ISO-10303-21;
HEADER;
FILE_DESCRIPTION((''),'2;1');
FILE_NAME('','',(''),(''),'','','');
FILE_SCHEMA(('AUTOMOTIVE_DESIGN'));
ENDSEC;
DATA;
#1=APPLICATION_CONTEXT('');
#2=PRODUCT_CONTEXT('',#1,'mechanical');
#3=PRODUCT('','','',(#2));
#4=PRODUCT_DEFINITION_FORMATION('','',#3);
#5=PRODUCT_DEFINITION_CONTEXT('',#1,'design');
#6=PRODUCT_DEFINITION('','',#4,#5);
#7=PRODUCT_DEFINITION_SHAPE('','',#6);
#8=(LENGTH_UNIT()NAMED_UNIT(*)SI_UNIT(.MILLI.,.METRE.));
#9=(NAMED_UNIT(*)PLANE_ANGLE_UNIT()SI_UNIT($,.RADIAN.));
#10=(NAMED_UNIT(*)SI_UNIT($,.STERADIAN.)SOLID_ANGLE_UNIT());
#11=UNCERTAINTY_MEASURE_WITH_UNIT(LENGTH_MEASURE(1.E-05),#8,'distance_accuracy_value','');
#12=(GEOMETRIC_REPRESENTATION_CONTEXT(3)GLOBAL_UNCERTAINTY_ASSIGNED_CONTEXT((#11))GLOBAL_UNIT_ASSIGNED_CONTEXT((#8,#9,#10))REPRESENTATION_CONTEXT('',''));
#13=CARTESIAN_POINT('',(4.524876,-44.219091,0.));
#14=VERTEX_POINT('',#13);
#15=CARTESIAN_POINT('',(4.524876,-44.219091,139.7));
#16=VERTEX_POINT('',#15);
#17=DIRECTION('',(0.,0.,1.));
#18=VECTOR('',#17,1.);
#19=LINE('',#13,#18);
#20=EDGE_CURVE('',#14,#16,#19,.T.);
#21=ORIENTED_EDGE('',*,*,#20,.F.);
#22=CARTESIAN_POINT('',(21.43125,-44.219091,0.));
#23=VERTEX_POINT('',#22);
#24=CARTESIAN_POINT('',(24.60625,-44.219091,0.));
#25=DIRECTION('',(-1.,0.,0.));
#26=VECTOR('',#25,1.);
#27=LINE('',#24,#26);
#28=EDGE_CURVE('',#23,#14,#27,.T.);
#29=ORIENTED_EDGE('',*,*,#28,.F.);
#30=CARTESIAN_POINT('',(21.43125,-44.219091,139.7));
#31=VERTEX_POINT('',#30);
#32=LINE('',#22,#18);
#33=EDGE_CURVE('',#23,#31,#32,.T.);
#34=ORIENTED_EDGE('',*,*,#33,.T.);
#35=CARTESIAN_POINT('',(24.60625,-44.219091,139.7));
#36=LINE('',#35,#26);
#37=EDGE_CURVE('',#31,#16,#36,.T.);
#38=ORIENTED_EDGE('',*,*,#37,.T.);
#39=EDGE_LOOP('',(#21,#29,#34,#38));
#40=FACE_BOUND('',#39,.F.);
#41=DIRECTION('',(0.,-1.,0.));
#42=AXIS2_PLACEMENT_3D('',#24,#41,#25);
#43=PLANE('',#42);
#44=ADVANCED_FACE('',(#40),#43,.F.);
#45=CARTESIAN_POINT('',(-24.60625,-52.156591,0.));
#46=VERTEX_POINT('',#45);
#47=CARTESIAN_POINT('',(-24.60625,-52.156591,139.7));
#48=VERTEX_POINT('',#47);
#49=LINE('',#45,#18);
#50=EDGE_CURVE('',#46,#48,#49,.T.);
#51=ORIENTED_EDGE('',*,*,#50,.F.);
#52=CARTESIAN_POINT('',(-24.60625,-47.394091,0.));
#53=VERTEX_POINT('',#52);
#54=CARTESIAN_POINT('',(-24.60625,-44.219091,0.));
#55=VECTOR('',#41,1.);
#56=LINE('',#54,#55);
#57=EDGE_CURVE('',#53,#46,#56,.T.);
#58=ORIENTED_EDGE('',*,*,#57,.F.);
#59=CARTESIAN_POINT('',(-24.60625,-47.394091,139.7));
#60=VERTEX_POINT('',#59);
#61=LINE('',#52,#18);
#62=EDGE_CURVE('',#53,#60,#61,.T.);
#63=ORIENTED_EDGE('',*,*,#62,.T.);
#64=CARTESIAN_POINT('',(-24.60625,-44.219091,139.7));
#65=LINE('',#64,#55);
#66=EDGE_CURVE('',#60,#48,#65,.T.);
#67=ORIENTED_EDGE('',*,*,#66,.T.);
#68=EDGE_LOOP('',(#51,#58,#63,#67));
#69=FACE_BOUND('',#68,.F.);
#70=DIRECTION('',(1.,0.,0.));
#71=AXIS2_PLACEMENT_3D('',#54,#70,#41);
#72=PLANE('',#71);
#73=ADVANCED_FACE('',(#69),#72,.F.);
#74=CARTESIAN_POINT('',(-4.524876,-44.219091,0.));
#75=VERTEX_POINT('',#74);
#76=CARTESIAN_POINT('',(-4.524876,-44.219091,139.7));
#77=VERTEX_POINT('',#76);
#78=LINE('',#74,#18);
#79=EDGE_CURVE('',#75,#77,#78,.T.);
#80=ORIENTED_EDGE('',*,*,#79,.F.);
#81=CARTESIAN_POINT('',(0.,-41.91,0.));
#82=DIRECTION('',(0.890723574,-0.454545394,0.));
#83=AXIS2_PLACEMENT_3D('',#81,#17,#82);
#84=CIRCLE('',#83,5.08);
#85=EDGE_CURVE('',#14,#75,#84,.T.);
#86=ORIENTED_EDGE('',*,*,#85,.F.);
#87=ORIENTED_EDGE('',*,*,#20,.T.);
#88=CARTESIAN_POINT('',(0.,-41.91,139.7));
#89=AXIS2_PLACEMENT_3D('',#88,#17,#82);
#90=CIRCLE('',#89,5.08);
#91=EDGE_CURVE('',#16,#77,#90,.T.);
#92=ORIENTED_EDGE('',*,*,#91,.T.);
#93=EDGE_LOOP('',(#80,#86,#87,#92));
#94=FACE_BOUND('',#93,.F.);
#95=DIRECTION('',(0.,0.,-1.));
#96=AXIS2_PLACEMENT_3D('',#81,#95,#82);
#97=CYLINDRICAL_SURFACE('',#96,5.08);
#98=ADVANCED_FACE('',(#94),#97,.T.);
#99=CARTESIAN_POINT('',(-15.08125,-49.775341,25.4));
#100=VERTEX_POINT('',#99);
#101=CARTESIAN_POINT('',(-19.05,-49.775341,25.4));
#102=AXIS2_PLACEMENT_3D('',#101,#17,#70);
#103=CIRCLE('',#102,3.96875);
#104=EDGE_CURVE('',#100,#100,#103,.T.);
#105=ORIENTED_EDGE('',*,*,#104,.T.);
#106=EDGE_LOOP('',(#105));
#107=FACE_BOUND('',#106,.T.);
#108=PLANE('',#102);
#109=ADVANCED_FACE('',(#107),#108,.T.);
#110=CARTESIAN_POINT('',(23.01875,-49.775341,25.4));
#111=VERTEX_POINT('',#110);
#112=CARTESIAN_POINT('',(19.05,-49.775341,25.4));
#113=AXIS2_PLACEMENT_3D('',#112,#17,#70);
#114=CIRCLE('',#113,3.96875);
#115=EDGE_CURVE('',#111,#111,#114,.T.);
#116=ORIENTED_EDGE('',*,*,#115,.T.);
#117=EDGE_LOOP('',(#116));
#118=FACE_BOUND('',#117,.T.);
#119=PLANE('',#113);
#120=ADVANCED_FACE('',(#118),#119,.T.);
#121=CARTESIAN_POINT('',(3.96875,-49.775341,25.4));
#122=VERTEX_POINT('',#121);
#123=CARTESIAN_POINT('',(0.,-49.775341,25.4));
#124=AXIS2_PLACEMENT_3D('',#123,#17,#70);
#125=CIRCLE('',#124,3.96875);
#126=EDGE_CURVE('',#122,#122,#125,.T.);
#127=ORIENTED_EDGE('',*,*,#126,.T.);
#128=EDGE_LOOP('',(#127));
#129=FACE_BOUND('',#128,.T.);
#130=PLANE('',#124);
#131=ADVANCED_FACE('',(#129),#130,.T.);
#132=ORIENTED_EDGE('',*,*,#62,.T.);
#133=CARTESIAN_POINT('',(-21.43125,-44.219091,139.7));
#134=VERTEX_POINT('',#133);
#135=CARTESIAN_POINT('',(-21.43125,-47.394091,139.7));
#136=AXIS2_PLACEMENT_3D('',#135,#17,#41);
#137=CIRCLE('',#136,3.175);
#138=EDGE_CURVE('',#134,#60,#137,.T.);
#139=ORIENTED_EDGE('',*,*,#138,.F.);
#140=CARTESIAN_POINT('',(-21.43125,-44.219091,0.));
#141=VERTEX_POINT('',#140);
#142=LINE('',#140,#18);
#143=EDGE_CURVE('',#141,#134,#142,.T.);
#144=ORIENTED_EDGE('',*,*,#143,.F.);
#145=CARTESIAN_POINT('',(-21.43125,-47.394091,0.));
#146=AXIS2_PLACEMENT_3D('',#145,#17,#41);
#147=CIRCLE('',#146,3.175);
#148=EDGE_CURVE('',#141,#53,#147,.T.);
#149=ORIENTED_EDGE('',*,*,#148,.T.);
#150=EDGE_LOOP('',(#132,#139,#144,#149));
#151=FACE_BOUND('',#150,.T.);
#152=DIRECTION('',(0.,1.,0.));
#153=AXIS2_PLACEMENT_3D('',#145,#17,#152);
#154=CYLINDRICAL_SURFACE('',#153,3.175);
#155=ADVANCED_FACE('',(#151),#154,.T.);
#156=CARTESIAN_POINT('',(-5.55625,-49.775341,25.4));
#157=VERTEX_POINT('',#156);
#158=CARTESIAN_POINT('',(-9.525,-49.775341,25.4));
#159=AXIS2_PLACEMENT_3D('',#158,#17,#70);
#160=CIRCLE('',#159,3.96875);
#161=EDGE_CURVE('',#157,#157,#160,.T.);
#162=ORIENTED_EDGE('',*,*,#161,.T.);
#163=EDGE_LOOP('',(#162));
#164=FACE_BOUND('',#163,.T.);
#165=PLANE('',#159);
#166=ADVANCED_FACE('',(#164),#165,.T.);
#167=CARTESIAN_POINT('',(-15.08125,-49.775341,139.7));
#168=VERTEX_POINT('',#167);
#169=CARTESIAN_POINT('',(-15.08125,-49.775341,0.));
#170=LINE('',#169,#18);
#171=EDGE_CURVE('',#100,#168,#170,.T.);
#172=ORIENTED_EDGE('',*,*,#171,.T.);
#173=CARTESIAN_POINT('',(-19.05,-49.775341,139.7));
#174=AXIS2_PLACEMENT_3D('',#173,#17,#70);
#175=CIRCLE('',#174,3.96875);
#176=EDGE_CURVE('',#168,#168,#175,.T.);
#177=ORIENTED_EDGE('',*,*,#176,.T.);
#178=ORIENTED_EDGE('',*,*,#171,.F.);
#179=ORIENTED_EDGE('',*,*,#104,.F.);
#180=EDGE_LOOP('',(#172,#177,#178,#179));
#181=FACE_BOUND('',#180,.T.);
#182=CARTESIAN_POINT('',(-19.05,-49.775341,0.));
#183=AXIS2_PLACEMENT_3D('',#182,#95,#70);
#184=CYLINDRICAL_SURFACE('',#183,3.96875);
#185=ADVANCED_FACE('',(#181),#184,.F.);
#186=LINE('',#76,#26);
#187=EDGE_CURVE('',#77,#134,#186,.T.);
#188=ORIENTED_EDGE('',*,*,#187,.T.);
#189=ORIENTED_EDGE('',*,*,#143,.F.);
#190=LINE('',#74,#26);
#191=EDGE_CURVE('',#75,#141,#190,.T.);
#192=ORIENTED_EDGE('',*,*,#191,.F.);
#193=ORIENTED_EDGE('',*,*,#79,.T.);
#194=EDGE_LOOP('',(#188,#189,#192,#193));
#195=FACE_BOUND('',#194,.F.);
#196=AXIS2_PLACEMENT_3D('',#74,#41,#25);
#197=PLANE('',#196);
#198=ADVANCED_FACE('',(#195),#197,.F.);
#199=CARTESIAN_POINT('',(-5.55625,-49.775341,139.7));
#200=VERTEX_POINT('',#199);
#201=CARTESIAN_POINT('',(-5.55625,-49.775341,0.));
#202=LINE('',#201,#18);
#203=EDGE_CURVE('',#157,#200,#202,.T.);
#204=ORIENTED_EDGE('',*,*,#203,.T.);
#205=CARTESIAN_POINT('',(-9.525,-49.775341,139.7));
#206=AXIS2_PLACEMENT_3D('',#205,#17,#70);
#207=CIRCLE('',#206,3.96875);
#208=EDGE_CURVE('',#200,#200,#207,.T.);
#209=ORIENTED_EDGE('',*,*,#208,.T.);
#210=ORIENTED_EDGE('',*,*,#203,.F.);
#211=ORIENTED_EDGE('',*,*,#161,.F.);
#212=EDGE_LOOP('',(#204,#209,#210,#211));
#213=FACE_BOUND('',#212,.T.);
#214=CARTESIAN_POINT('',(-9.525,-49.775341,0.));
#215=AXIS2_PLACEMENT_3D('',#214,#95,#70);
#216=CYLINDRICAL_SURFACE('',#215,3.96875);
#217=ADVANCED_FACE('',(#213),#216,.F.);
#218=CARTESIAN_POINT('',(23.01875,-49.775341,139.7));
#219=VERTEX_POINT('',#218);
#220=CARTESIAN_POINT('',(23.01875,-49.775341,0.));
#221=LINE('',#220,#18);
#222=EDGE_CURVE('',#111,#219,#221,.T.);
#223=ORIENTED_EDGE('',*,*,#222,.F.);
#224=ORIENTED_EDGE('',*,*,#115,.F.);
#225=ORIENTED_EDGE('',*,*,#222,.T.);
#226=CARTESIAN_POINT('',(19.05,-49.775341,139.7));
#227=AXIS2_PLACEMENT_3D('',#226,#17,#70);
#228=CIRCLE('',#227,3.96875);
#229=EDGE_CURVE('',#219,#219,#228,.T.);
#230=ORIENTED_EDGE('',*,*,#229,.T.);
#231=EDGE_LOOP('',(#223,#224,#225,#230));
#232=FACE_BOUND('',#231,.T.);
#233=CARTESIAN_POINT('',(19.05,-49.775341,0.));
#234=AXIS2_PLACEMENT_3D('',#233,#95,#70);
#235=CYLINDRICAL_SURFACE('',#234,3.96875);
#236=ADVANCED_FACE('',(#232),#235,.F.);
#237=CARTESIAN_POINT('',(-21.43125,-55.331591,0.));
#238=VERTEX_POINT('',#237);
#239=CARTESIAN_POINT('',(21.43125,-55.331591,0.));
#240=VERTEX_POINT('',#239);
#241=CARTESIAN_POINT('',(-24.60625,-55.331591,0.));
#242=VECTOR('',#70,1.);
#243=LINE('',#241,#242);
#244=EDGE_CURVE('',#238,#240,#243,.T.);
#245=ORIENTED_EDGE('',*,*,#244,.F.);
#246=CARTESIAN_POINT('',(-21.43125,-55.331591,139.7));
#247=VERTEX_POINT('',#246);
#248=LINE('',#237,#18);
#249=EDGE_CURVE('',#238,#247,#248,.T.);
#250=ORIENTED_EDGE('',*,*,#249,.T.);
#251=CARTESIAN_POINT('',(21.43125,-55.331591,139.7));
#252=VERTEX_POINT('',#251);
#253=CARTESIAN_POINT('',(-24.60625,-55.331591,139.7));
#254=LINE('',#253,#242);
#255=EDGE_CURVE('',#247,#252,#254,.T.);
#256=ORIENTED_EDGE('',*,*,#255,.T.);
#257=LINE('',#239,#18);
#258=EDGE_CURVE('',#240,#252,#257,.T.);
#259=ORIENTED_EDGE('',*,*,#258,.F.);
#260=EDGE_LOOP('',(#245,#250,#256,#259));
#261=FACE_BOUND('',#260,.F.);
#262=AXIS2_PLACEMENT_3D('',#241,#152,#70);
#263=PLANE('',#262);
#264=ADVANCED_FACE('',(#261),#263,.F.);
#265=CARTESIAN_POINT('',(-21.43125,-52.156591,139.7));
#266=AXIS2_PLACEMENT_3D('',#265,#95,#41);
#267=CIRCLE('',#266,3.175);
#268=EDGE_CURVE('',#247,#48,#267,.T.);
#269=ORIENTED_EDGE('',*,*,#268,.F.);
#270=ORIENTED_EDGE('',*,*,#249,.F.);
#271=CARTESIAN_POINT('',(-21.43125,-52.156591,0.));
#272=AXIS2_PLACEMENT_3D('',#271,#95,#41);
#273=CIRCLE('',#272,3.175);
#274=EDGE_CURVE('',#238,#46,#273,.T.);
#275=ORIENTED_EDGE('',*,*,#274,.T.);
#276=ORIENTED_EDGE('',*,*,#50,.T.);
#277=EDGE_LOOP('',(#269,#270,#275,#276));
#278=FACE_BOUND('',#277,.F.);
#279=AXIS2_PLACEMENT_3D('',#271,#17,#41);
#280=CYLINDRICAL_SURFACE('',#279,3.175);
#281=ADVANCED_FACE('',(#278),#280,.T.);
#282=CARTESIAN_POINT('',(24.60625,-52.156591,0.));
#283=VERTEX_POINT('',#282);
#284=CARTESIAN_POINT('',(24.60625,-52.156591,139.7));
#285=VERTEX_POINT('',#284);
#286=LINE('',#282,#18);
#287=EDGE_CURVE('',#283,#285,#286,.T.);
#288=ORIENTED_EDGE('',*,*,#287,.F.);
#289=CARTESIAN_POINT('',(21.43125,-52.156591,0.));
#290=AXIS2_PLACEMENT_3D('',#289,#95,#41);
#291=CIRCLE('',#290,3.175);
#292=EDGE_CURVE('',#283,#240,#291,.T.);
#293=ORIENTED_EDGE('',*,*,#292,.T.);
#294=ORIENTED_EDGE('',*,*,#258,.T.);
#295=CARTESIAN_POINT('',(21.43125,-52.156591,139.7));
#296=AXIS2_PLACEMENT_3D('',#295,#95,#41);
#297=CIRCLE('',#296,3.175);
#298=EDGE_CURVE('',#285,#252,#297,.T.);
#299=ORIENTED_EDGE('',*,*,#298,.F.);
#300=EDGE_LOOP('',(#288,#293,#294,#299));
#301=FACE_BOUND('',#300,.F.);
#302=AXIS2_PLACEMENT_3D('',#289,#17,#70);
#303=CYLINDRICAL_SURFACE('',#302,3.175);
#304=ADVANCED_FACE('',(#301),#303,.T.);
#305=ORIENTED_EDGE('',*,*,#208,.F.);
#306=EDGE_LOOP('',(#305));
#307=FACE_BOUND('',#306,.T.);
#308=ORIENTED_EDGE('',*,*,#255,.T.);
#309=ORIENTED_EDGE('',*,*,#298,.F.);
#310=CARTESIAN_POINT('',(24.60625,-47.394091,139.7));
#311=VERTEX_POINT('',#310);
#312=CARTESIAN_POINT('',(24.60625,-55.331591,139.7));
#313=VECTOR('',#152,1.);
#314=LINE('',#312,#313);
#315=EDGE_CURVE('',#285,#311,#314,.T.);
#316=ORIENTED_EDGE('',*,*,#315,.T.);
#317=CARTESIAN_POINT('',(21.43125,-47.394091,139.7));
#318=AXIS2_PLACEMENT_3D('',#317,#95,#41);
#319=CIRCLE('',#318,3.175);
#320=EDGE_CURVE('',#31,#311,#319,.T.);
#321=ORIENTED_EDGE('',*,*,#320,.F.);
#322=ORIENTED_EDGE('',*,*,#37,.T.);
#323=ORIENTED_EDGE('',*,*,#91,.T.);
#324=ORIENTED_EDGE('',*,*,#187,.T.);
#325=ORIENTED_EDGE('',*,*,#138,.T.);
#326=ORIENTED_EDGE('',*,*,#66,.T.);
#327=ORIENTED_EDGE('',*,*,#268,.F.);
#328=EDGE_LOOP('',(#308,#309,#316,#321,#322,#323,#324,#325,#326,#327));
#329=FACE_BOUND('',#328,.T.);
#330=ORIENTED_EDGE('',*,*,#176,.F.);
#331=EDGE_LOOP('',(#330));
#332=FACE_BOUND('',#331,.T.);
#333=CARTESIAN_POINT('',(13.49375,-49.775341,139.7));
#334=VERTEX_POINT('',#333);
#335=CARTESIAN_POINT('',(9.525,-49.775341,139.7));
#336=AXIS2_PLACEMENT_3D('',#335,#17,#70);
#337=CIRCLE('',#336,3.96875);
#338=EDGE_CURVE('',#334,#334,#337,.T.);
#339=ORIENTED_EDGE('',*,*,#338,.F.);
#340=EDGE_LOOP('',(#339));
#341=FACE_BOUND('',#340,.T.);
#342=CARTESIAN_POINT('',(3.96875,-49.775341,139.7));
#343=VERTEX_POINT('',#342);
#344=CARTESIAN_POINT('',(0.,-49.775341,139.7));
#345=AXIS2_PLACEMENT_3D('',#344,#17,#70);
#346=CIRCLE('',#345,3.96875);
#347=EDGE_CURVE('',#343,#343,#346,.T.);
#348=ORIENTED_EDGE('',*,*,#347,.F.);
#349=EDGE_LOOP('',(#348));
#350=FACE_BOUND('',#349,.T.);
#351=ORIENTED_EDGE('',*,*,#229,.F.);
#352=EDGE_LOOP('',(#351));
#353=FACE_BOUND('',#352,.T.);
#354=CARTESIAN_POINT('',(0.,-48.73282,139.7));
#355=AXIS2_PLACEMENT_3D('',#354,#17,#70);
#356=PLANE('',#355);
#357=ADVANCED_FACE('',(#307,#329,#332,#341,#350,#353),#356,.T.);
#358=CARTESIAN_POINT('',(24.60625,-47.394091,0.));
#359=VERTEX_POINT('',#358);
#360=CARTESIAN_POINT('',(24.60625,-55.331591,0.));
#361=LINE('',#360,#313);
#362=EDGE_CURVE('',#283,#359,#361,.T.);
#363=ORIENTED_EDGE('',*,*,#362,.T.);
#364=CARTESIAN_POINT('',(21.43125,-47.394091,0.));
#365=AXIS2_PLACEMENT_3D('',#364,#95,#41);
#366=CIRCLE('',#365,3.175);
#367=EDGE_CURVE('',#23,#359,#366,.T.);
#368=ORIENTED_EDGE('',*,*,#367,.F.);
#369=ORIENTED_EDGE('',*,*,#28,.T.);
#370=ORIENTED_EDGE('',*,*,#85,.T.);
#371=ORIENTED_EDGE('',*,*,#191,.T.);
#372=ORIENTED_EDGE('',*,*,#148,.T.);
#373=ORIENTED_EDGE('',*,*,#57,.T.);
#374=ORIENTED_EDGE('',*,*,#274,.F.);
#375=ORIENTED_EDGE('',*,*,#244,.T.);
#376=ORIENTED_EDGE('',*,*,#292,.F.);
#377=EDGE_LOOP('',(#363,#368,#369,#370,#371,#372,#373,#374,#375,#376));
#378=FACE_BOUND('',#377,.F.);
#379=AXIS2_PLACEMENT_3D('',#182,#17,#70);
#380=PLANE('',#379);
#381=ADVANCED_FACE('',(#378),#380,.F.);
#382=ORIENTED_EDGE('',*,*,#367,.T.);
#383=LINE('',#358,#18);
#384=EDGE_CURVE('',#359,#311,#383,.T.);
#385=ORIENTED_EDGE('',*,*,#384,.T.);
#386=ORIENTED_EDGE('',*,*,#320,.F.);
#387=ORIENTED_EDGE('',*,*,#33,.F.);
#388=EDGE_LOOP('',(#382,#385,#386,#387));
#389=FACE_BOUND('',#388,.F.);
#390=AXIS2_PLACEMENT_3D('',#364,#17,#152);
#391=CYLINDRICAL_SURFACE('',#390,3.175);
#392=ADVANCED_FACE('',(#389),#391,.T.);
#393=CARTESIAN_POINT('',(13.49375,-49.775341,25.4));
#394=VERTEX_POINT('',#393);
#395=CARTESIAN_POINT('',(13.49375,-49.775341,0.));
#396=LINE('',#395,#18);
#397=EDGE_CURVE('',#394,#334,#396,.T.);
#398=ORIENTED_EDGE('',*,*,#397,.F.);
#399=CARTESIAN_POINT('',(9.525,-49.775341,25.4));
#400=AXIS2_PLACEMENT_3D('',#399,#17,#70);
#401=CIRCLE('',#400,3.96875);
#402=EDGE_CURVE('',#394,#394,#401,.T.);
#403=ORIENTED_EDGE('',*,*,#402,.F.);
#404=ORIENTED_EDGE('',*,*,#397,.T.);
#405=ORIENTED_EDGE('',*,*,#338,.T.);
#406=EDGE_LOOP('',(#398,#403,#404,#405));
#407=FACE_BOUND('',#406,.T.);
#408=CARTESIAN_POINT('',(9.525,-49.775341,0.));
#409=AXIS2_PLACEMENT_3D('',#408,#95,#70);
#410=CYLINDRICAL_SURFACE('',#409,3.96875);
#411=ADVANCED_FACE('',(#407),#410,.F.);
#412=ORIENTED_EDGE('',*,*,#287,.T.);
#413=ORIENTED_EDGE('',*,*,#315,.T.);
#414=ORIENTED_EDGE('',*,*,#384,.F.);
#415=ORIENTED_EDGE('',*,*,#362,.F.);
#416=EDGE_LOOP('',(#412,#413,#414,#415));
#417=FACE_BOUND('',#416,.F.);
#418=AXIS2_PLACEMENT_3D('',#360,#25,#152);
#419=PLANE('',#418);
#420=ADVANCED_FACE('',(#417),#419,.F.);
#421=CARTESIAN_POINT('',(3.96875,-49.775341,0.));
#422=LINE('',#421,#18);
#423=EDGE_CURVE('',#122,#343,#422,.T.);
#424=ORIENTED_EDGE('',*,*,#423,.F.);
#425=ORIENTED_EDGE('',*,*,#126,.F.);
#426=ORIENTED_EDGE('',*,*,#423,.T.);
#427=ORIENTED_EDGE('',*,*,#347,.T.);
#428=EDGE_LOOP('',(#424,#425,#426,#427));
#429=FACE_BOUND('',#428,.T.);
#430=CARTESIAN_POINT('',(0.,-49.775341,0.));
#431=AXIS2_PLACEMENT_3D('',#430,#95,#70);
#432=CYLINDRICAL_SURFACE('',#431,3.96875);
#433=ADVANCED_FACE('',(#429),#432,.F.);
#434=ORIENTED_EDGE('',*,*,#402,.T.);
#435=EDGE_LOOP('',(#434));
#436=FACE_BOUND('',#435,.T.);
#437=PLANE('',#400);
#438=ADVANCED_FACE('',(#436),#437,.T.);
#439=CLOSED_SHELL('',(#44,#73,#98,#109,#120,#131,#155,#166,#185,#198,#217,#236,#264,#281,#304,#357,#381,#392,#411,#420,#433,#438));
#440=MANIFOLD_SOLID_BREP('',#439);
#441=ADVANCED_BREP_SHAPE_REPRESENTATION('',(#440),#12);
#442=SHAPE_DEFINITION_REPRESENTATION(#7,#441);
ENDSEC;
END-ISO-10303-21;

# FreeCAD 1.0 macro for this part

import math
import FreeCAD as App
import Part
import Sketcher
Q = App.Units.Quantity


def edges_at(feature, points):
    """Names of the edges that pass closest to the given points."""
    edges = feature.Shape.Edges
    near = lambda p: min(range(len(edges)), key=lambda i: edges[i].distToShape(Part.Vertex(*p))[0])
    return sorted({f"Edge{near(p) + 1}" for p in points})

doc = App.newDocument("Part")
params = doc.addObject("Spreadsheet::Sheet", "Params")
for row, (alias, value) in enumerate([
    ("sketch1_radius", "0.2 in"),
    ("sketch1_diameter", "0.3125 in"),
    ("sketch1_width", "1.9375 in"),
    ("sketch1_height", "0.4375 in"),
    ("pad1_length", "5.5 in"),
    ("sketch2_diameter", "0.3125 in"),
    ("pad2_length", "1 in"),
    ("fillet_radius", "0.125 in"),
], start=1):
    params.set(f"A{row}", alias)
    params.set(f"B{row}", "=" + value)
    params.setAlias(f"B{row}", alias)

body = doc.addObject("PartDesign::Body", "Body")

sketch1 = doc.addObject("Sketcher::SketchObject", "Sketch")
body.addObject(sketch1)
sketch1.AttachmentSupport = (doc.XY_Plane, [""])
sketch1.MapMode = "FlatFace"
sketch1.addGeometry([
    Part.LineSegment(App.Vector(24.6, -44.2, 0), App.Vector(4.5, -44.2, 0)),
    Part.ArcOfCircle(Part.Circle(App.Vector(0, -41.9, 0), App.Vector(0, 0, 1), 5.1), math.radians(-27), math.radians(207)),
    Part.LineSegment(App.Vector(-4.5, -44.2, 0), App.Vector(-24.6, -44.2, 0)),
    Part.LineSegment(App.Vector(-24.6, -44.2, 0), App.Vector(-24.6, -55.3, 0)),
    Part.LineSegment(App.Vector(-24.6, -55.3, 0), App.Vector(24.6, -55.3, 0)),
    Part.LineSegment(App.Vector(24.6, -55.3, 0), App.Vector(24.6, -44.2, 0)),
    Part.Circle(App.Vector(-19.1, -49.8, 0), App.Vector(0, 0, 1), 4),
    Part.Circle(App.Vector(-9.5, -49.8, 0), App.Vector(0, 0, 1), 4),
    Part.Circle(App.Vector(0, -49.8, 0), App.Vector(0, 0, 1), 4),
    Part.Circle(App.Vector(9.5, -49.8, 0), App.Vector(0, 0, 1), 4),
    Part.Circle(App.Vector(19.1, -49.8, 0), App.Vector(0, 0, 1), 4),
], False)
sketch1.addConstraint([
    Sketcher.Constraint("Coincident", 0, 2, 1, 1),
    Sketcher.Constraint("Coincident", 1, 2, 2, 1),
    Sketcher.Constraint("Coincident", 2, 2, 3, 1),
    Sketcher.Constraint("Coincident", 3, 2, 4, 1),
    Sketcher.Constraint("Coincident", 4, 2, 5, 1),
    Sketcher.Constraint("Coincident", 5, 2, 0, 1),
    Sketcher.Constraint("Horizontal", 0),
    Sketcher.Constraint("Horizontal", 2),
    Sketcher.Constraint("Vertical", 3),
    Sketcher.Constraint("Horizontal", 4),
    Sketcher.Constraint("Vertical", 5),
    Sketcher.Constraint("Equal", 6, 7),
    Sketcher.Constraint("Equal", 7, 8),
    Sketcher.Constraint("Equal", 8, 9),
    Sketcher.Constraint("Equal", 9, 10),
    Sketcher.Constraint("Symmetric", 7, 3, 9, 3, -2),
    Sketcher.Constraint("Symmetric", 6, 3, 10, 3, -2),
    Sketcher.Constraint("Symmetric", 0, 2, 1, 2, -2),
    Sketcher.Constraint("PointOnObject", 8, 3, -2),
    Sketcher.Constraint("Horizontal", 6, 3, 7, 3),
    Sketcher.Constraint("Horizontal", 7, 3, 8, 3),
    Sketcher.Constraint("Equal", 0, 2),
    Sketcher.Constraint("Radius", 1, Q("0.2 in")),
    Sketcher.Constraint("Diameter", 6, Q("0.3125 in")),
    Sketcher.Constraint("DistanceX", 6, 3, 10, 3, Q("1.5 in")),
    Sketcher.Constraint("DistanceX", 4, 1, 4, 2, Q("1.9375 in")),
    Sketcher.Constraint("DistanceY", 3, 2, 3, 1, Q("0.4375 in")),
    Sketcher.Constraint("DistanceY", 1, 3, -1, 1, Q("1.65 in")),
    Sketcher.Constraint("DistanceX", 7, 3, 9, 3, Q("0.75 in")),
    Sketcher.Constraint("DistanceY", 8, 3, 0, 2, Q("0.21875 in")),
    Sketcher.Constraint("DistanceX", 0, 2, 0, 1, Q("20.081374 mm")),
])
sketch1.setExpression("Constraints[22]", "Params.sketch1_radius")
sketch1.setExpression("Constraints[23]", "Params.sketch1_diameter")
sketch1.setExpression("Constraints[25]", "Params.sketch1_width")
sketch1.setExpression("Constraints[26]", "Params.sketch1_height")
pad1 = doc.addObject("PartDesign::Pad", "Pad")
body.addObject(pad1)
pad1.Profile = sketch1
pad1.setExpression("Length", "Params.pad1_length")

sketch2 = doc.addObject("Sketcher::SketchObject", "Sketch001")
body.addObject(sketch2)
sketch2.AttachmentSupport = (doc.XY_Plane, [""])
sketch2.MapMode = "FlatFace"
sketch2.addGeometry([
    Part.Circle(App.Vector(-19.1, -49.8, 0), App.Vector(0, 0, 1), 4),
    Part.Circle(App.Vector(-9.5, -49.8, 0), App.Vector(0, 0, 1), 4),
    Part.Circle(App.Vector(0, -49.8, 0), App.Vector(0, 0, 1), 4),
    Part.Circle(App.Vector(9.5, -49.8, 0), App.Vector(0, 0, 1), 4),
    Part.Circle(App.Vector(19.1, -49.8, 0), App.Vector(0, 0, 1), 4),
], False)
sketch2.addConstraint([
    Sketcher.Constraint("Equal", 0, 1),
    Sketcher.Constraint("Equal", 1, 2),
    Sketcher.Constraint("Equal", 2, 3),
    Sketcher.Constraint("Equal", 3, 4),
    Sketcher.Constraint("Symmetric", 1, 3, 3, 3, -2),
    Sketcher.Constraint("Symmetric", 0, 3, 4, 3, -2),
    Sketcher.Constraint("PointOnObject", 2, 3, -2),
    Sketcher.Constraint("Horizontal", 0, 3, 1, 3),
    Sketcher.Constraint("Horizontal", 1, 3, 2, 3),
    Sketcher.Constraint("Diameter", 0, Q("0.3125 in")),
    Sketcher.Constraint("DistanceX", 0, 3, 4, 3, Q("1.5 in")),
    Sketcher.Constraint("DistanceX", 1, 3, 3, 3, Q("0.75 in")),
    Sketcher.Constraint("DistanceY", 0, 3, -1, 1, Q("49.775341 mm")),
])
sketch2.setExpression("Constraints[9]", "Params.sketch2_diameter")
pad2 = doc.addObject("PartDesign::Pad", "Pad001")
body.addObject(pad2)
pad2.Profile = sketch2
pad2.setExpression("Length", "Params.pad2_length")
doc.recompute()

fillet = doc.addObject("PartDesign::Fillet", "Fillet")
body.addObject(fillet)
fillet.Base = (pad2, edges_at(pad2, [
    (24.606, -55.332, 69.85),
    (24.606, -44.219, 69.85),
    (-24.606, -44.219, 69.85),
    (-24.606, -55.332, 69.85),
]))
fillet.setExpression("Radius", "Params.fillet_radius")

doc.recompute()
